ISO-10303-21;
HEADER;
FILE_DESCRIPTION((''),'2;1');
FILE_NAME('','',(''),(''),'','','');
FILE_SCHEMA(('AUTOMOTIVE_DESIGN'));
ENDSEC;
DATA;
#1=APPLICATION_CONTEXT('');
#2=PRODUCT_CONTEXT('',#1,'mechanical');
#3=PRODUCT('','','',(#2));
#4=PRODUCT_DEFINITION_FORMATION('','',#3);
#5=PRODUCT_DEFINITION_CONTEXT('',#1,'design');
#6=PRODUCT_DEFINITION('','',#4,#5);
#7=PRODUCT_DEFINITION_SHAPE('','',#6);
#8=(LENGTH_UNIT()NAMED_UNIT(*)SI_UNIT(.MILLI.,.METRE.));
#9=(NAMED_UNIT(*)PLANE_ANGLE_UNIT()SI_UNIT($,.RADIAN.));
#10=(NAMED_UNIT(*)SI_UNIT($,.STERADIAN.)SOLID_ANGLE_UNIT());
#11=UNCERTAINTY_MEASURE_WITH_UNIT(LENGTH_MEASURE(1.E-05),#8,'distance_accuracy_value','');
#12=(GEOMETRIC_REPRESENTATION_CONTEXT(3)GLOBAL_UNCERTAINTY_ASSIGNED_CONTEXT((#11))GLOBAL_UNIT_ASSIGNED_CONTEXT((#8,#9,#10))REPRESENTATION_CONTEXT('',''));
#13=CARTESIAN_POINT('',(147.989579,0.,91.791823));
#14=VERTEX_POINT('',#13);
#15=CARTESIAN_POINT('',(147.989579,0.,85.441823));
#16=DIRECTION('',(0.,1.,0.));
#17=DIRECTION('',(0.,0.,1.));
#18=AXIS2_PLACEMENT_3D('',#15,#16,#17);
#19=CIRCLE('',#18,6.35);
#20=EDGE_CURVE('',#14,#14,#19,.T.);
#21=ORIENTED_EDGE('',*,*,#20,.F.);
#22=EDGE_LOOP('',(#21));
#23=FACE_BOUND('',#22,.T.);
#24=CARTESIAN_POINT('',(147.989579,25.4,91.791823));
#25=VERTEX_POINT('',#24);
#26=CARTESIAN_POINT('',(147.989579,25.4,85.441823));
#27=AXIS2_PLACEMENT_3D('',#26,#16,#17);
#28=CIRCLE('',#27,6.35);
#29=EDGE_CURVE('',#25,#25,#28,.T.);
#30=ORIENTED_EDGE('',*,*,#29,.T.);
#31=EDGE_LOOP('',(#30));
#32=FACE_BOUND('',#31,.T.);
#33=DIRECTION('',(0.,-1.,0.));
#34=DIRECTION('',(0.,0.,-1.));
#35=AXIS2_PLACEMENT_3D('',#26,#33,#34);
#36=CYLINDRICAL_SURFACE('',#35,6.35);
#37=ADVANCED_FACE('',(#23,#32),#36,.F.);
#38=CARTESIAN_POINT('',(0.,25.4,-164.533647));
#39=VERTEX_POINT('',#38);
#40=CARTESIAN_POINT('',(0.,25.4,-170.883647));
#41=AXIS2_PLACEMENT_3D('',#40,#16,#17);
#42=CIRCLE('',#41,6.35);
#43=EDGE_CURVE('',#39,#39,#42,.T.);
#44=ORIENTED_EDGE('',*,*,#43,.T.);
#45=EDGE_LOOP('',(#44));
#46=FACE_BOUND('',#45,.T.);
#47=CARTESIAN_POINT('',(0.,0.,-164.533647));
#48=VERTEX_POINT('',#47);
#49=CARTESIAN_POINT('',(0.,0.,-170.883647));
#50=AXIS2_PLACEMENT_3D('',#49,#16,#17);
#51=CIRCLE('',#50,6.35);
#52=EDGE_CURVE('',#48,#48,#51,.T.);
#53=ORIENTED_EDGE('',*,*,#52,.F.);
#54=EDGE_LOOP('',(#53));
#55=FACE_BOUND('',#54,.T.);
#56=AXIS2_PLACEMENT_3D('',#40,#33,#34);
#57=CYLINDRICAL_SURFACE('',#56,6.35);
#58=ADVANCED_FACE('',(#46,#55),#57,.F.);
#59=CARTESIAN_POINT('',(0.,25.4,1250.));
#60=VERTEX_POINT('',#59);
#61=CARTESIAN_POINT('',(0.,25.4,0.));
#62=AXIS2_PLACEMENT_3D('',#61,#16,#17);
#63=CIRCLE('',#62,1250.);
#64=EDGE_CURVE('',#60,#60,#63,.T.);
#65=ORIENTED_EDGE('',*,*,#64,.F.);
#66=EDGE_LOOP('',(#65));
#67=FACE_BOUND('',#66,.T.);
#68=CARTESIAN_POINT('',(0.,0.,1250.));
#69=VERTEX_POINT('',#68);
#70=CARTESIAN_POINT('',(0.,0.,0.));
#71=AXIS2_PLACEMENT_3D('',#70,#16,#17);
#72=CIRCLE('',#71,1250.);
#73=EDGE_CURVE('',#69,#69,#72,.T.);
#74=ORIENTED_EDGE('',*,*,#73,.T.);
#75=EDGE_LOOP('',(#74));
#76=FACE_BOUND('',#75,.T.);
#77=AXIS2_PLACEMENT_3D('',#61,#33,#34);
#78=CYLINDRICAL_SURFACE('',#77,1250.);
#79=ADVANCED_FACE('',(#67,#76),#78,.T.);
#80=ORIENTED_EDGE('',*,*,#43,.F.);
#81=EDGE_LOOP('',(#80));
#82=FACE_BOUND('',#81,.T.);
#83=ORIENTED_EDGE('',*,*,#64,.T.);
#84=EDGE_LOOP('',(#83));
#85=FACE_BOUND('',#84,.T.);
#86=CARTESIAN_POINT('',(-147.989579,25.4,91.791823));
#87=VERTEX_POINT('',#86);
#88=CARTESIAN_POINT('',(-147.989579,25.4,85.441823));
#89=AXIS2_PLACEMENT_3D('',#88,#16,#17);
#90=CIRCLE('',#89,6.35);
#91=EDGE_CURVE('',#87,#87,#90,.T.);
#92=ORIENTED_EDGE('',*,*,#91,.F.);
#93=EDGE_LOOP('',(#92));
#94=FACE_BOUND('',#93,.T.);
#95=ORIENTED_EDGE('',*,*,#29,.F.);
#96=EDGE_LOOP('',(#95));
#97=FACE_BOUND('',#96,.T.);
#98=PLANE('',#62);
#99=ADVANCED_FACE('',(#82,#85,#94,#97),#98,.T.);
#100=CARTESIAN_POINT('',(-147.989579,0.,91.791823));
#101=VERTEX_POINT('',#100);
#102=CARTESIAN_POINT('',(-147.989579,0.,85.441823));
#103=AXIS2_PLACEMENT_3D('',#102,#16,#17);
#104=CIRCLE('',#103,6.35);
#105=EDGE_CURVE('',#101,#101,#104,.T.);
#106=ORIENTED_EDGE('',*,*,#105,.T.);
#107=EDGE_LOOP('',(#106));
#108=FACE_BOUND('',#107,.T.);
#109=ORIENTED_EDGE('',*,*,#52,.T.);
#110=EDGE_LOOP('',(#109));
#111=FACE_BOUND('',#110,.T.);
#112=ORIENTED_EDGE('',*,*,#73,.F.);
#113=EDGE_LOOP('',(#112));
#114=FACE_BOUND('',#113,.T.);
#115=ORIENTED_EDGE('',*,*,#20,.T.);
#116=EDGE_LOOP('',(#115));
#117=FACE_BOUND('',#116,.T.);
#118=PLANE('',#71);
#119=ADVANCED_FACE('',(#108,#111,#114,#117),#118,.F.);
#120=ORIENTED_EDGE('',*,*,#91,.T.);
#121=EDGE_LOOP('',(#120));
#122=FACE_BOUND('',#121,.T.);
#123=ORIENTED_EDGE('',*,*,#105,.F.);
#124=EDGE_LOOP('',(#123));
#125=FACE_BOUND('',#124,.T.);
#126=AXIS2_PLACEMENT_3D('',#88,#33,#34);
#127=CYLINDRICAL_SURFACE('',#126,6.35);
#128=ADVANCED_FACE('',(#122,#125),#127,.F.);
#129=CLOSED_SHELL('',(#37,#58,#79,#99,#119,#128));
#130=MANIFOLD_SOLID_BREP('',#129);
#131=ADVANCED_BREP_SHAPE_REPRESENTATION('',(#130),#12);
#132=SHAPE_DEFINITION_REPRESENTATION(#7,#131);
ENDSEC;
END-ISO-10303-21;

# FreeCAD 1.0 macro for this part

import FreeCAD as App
import Part
import Sketcher
from FreeCAD import Vector
Q = App.Units.Quantity

doc = App.newDocument("Part")
body = doc.addObject("PartDesign::Body", "Body")

# Sketch on XZ plane
sketch1 = doc.addObject("Sketcher::SketchObject", "Sketch")
body.addObject(sketch1)
sketch1.AttachmentSupport = (doc.XZ_Plane, [""])
sketch1.MapMode = "FlatFace"
sketch1.addGeometry([
    Part.Circle(Vector(0, 0, 0), Vector(0, 0, 1), 1250),
    Part.Circle(Vector(-148, 85, 0), Vector(0, 0, 1), 6),
    Part.Circle(Vector(148, 85, 0), Vector(0, 0, 1), 6),
    Part.Circle(Vector(0, -171, 0), Vector(0, 0, 1), 6),
], False)
sketch1.addConstraint([
    Sketcher.Constraint("Coincident", 0, 3, -1, 1),
    Sketcher.Constraint("Equal", 1, 2),
    Sketcher.Constraint("Equal", 2, 3),
    Sketcher.Constraint("Symmetric", 1, 3, 2, 3, -2),
    Sketcher.Constraint("PointOnObject", 3, 3, -2),
    Sketcher.Constraint("Diameter", 1, Q("0.5 in")),
    Sketcher.Constraint("Diameter", 0, Q("2500 mm")),
    Sketcher.Constraint("DistanceX", 1, 3, -1, 1, Q("147.989579 mm")),
    Sketcher.Constraint("DistanceY", 3, 3, 1, 3, Q("256.32547 mm")),
    Sketcher.Constraint("DistanceY", -1, 1, 1, 3, Q("85.441823 mm")),
])
pad1 = doc.addObject("PartDesign::Pad", "Pad")
body.addObject(pad1)
pad1.Profile = sketch1
pad1.Length = Q("1 in")
pad1.Reversed = True

doc.recompute()
